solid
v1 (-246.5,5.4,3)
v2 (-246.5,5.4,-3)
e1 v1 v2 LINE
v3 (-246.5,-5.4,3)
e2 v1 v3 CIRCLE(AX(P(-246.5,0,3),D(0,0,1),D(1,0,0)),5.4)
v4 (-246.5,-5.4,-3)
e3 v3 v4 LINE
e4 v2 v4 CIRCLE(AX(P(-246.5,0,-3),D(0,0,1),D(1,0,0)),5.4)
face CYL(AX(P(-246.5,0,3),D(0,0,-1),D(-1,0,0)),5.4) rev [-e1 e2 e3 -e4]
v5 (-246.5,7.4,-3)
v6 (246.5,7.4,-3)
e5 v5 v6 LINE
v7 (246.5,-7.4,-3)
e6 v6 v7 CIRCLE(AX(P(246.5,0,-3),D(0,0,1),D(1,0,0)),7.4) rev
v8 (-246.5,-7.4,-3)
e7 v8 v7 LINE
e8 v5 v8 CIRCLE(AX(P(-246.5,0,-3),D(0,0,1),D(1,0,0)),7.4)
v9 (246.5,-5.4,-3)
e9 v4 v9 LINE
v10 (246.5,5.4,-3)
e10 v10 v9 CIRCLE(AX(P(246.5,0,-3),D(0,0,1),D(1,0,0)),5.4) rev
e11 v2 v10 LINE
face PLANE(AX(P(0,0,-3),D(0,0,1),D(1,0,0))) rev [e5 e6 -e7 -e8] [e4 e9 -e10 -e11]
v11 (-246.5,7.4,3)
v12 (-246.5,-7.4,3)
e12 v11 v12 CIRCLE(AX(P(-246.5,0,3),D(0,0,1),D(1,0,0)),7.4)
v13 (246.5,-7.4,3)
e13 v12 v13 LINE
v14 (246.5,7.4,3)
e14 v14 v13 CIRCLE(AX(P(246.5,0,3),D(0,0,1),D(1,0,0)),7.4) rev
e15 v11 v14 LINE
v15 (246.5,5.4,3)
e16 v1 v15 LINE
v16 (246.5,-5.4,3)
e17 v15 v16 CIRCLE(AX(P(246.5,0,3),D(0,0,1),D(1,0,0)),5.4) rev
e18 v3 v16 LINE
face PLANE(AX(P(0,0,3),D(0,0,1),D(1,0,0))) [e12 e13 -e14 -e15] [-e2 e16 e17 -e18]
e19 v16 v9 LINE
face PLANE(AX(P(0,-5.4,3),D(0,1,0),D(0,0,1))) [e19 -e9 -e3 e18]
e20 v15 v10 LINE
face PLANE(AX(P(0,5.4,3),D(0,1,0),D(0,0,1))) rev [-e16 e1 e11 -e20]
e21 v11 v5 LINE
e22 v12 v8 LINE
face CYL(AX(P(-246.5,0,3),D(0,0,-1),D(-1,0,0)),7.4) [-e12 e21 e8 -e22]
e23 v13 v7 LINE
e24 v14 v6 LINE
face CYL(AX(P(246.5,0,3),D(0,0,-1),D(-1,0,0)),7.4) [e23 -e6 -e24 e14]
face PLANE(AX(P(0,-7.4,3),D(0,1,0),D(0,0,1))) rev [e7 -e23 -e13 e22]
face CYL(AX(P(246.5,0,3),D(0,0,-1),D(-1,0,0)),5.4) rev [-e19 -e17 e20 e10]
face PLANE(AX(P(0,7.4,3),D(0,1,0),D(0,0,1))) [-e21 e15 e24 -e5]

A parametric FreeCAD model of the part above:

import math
import FreeCAD as App
import Part
import Sketcher
from FreeCAD import Vector

doc = App.newDocument("Part")
params = doc.addObject("Spreadsheet::Sheet", "Params")
for row, (alias, value) in enumerate([
    ("sketch1_radius", "7.4 mm"),
    ("sketch1_radius2", "5.4 mm"),
    ("sketch1_width", "493 mm"),
    ("pad1_length", "6 mm"),
], start=1):
    params.set(f"A{row}", alias)
    params.set(f"B{row}", "=" + value)
    params.setAlias(f"B{row}", alias)

body = doc.addObject("PartDesign::Body", "Body")

sketch1 = doc.addObject("Sketcher::SketchObject", "Sketch")
body.addObject(sketch1)
sketch1.AttachmentSupport = (doc.XY_Plane, [""])
sketch1.MapMode = "FlatFace"
sketch1.addGeometry([
    Part.ArcOfCircle(Part.Circle(Vector(246, 0, 0), Vector(0, 0, 1), 7), math.radians(-90), math.radians(90)),
    Part.LineSegment(Vector(246, 7, 0), Vector(-246, 7, 0)),
    Part.ArcOfCircle(Part.Circle(Vector(-246, 0, 0), Vector(0, 0, 1), 7), math.radians(90), math.radians(270)),
    Part.LineSegment(Vector(-246, -7, 0), Vector(246, -7, 0)),
    Part.ArcOfCircle(Part.Circle(Vector(-246, 0, 0), Vector(0, 0, 1), 5), math.radians(90), math.radians(270)),
    Part.LineSegment(Vector(-246, 5, 0), Vector(246, 5, 0)),
    Part.ArcOfCircle(Part.Circle(Vector(246, 0, 0), Vector(0, 0, 1), 5), math.radians(-90), math.radians(90)),
    Part.LineSegment(Vector(246, -5, 0), Vector(-246, -5, 0)),
], False)
sketch1.addConstraint([
    Sketcher.Constraint("Tangent", 0, 2, 1, 1),
    Sketcher.Constraint("Tangent", 1, 2, 2, 1),
    Sketcher.Constraint("Tangent", 2, 2, 3, 1),
    Sketcher.Constraint("Tangent", 3, 2, 0, 1),
    Sketcher.Constraint("Tangent", 4, 1, 5, 1),
    Sketcher.Constraint("Tangent", 5, 2, 6, 2),
    Sketcher.Constraint("Tangent", 6, 1, 7, 1),
    Sketcher.Constraint("Tangent", 7, 2, 4, 2),
    Sketcher.Constraint("Horizontal", 1),
    Sketcher.Constraint("Horizontal", 3),
    Sketcher.Constraint("Horizontal", 5),
    Sketcher.Constraint("Horizontal", 7),
    Sketcher.Constraint("Coincident", 4, 3, 2, 3),
    Sketcher.Constraint("Symmetric", 0, 3, 2, 3, -1, 1),
    Sketcher.Constraint("Vertical", 6, 3, 0, 2),
    Sketcher.Constraint("Radius", 0, 7.4),
    Sketcher.Constraint("Radius", 4, 5.4),
    Sketcher.Constraint("DistanceX", 1, 2, 1, 1, 493.0),
])
sketch1.setExpression("Constraints[15]", "Params.sketch1_radius")
sketch1.setExpression("Constraints[16]", "Params.sketch1_radius2")
sketch1.setExpression("Constraints[17]", "Params.sketch1_width")
pad1 = doc.addObject("PartDesign::Pad", "Pad")
body.addObject(pad1)
pad1.Profile = sketch1
pad1.setExpression("Length", "Params.pad1_length")
pad1.Midplane = True

doc.recompute()
